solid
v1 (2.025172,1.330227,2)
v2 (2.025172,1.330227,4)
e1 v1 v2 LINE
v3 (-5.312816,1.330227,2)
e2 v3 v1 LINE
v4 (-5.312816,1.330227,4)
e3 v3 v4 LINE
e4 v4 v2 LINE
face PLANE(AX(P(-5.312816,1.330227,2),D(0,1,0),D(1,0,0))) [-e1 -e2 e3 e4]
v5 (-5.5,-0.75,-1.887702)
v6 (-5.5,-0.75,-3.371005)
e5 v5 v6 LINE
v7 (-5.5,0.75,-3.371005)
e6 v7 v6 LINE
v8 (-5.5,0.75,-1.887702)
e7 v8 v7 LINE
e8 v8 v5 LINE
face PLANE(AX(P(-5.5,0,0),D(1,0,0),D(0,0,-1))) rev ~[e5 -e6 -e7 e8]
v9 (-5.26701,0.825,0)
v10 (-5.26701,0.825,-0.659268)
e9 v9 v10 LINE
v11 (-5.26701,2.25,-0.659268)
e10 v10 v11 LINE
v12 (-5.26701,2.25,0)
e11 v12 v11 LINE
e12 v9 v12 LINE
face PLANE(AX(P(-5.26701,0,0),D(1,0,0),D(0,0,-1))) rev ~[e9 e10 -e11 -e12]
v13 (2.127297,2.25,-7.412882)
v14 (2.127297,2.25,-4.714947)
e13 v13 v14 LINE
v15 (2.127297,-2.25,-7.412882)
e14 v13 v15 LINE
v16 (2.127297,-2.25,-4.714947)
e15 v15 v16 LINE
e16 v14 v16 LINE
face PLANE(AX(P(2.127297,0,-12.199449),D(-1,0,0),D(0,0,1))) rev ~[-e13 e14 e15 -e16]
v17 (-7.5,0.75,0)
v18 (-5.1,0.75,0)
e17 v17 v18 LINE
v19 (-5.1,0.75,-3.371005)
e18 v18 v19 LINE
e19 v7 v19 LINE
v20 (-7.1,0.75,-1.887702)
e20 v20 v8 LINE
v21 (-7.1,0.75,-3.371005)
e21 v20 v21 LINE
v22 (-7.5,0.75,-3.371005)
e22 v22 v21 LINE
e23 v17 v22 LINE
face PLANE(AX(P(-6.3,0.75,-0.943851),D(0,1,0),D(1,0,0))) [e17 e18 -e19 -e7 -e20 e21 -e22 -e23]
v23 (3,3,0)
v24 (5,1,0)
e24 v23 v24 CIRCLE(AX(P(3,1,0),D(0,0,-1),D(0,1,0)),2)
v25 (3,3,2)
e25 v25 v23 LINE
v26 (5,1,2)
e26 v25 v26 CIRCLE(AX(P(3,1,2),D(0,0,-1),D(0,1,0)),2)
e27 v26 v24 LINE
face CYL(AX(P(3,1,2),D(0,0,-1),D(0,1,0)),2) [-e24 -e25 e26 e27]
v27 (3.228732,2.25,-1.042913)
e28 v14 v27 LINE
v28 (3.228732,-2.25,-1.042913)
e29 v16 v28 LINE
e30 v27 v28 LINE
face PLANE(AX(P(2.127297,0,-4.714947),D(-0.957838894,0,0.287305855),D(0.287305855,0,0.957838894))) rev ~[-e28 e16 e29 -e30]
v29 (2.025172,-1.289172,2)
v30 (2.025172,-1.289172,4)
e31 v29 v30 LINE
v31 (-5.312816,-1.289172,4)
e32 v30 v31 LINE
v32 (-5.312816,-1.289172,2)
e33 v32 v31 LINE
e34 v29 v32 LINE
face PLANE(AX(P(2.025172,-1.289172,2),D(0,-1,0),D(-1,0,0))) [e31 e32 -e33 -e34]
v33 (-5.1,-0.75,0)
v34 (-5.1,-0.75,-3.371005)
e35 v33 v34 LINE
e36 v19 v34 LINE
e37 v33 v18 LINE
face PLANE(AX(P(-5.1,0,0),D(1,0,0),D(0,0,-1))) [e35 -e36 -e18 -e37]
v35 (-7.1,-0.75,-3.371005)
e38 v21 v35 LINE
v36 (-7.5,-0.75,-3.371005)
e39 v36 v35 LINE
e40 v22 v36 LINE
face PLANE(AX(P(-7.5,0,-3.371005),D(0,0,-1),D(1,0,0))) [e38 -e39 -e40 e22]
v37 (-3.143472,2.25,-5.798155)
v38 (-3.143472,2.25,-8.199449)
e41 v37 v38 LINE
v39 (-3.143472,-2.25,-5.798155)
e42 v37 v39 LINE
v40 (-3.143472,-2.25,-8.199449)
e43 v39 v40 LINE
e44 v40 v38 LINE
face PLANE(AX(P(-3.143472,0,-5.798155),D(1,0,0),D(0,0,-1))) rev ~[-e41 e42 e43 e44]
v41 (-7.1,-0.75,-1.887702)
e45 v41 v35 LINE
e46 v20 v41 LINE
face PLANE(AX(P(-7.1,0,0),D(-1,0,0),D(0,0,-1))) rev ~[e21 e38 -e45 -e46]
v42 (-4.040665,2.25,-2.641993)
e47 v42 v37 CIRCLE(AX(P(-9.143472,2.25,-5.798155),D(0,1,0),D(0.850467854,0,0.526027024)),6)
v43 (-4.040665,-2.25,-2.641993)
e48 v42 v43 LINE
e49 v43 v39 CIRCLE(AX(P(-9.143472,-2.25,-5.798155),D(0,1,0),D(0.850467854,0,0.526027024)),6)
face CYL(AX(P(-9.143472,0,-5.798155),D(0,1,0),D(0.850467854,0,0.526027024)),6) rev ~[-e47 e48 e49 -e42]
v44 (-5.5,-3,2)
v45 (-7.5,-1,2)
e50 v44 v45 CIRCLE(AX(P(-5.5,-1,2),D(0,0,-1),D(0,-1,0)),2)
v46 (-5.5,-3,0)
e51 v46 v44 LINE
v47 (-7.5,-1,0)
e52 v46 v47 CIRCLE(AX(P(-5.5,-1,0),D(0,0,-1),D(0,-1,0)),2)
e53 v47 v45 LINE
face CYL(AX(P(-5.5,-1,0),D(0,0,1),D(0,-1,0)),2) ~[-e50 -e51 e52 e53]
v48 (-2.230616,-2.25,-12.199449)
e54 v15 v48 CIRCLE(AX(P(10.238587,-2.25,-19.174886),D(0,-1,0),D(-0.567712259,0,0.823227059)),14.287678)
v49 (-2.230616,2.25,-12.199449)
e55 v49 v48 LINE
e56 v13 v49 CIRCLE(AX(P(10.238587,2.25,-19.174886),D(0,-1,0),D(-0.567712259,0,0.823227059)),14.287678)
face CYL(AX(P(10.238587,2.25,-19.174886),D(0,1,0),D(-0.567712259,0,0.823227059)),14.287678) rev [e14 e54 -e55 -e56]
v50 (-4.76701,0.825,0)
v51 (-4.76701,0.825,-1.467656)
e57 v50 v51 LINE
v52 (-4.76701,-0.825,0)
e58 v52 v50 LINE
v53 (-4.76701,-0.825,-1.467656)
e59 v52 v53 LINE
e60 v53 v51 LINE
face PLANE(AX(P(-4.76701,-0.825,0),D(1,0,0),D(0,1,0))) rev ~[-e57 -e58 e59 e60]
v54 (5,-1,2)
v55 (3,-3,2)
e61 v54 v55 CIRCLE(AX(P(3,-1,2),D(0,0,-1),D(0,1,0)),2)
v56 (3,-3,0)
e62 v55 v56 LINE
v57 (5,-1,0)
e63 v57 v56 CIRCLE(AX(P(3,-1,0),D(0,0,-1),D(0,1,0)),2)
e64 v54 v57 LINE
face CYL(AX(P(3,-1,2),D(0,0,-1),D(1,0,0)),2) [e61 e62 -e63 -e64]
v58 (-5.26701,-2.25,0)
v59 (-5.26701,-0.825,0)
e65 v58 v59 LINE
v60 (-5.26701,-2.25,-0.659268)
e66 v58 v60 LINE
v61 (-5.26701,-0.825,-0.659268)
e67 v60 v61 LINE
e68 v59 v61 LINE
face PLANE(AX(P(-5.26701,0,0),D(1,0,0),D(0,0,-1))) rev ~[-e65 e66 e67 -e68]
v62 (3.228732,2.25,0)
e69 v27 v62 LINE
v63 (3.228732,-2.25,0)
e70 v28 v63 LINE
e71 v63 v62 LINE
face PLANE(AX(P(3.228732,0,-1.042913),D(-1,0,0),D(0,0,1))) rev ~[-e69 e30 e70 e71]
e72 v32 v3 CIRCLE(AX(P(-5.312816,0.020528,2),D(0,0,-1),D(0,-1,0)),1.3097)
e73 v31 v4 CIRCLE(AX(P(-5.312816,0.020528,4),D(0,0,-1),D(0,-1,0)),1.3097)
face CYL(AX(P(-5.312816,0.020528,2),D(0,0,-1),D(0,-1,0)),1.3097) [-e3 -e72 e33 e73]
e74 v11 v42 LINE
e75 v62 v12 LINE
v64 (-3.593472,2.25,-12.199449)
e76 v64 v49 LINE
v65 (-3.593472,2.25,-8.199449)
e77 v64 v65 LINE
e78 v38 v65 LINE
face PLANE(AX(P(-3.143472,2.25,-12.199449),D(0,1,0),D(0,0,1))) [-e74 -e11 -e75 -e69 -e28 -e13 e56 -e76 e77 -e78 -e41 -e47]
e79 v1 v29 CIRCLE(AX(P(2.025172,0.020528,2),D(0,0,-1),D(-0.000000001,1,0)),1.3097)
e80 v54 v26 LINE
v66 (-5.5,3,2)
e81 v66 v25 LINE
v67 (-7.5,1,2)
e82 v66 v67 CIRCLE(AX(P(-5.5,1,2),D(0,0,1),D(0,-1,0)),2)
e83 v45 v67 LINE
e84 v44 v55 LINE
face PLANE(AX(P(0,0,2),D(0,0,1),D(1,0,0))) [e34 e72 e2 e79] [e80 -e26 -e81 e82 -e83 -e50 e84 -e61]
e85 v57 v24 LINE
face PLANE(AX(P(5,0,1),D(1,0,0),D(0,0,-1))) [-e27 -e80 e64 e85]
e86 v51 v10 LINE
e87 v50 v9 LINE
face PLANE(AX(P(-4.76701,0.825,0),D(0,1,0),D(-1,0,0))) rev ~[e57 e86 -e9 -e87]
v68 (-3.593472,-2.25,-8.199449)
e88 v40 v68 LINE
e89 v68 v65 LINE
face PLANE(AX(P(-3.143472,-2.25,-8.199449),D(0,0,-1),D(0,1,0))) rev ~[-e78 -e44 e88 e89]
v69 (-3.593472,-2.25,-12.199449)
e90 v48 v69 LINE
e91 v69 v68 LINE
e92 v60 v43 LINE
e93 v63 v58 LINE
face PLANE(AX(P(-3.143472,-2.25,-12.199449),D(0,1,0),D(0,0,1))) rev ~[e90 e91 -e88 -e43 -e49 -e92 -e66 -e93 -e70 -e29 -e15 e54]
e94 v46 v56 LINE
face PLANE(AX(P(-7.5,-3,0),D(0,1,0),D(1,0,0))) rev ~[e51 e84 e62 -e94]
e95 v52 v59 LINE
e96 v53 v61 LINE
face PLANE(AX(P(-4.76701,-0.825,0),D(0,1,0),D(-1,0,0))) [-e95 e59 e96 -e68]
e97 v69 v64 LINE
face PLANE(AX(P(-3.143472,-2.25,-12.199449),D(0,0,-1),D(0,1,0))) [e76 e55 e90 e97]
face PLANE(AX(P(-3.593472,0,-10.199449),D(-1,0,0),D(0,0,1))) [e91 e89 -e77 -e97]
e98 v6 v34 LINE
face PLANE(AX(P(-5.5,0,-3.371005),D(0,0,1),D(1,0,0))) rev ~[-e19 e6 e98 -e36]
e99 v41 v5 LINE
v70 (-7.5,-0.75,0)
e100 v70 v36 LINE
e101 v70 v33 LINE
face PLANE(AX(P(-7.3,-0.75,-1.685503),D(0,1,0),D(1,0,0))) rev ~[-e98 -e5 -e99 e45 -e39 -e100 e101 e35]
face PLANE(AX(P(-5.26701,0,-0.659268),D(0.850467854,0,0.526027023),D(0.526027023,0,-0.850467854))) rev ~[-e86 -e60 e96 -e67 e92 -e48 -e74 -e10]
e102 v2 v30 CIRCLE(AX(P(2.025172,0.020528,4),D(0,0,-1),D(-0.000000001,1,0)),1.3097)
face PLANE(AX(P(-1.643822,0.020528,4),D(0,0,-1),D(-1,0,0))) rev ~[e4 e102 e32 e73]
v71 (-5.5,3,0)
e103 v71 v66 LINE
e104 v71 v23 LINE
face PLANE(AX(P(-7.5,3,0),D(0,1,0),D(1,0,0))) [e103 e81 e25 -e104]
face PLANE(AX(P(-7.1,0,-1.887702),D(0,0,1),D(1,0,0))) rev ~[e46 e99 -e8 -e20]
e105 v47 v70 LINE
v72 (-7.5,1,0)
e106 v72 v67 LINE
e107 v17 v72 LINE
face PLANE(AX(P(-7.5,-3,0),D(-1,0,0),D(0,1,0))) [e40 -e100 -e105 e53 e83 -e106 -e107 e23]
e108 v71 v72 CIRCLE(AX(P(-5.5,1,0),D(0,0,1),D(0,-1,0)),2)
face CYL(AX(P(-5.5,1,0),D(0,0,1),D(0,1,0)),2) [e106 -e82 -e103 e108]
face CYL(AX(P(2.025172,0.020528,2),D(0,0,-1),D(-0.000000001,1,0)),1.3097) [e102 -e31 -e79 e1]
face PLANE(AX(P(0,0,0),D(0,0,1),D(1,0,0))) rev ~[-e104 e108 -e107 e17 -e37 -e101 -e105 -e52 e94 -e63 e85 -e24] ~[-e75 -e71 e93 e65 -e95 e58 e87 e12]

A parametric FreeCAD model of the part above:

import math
import FreeCAD as App
import Part
import Sketcher

V = App.Vector


def edges_at(feature, points):
    """Names of the edges that pass closest to the given points."""
    edges = feature.Shape.Edges
    near = lambda p: min(range(len(edges)), key=lambda i: edges[i].distToShape(Part.Vertex(*p))[0])
    return sorted({f"Edge{near(p) + 1}" for p in points})

doc = App.newDocument("Part")
body = doc.addObject("PartDesign::Body", "Body")

# Sketch on XY plane
sketch1 = doc.addObject("Sketcher::SketchObject", "Sketch")
body.addObject(sketch1)
sketch1.AttachmentSupport = (doc.XY_Plane, [""])
sketch1.MapMode = "FlatFace"
sketch1.addGeometry([
    Part.LineSegment(V(-8, 3, 0), V(-8, -3, 0)),
    Part.LineSegment(V(-8, -3, 0), V(8, -3, 0)),
    Part.LineSegment(V(8, -3, 0), V(8, 3, 0)),
    Part.LineSegment(V(8, 3, 0), V(-8, 3, 0)),
], False)
sketch1.addConstraint([
    Sketcher.Constraint("Coincident", 0, 2, 1, 1),
    Sketcher.Constraint("Coincident", 1, 2, 2, 1),
    Sketcher.Constraint("Coincident", 2, 2, 3, 1),
    Sketcher.Constraint("Coincident", 3, 2, 0, 1),
    Sketcher.Constraint("Vertical", 0),
    Sketcher.Constraint("Horizontal", 1),
    Sketcher.Constraint("Vertical", 2),
    Sketcher.Constraint("Horizontal", 3),
    Sketcher.Constraint("Symmetric", 0, 2, 2, 2, -1, 1),
    Sketcher.Constraint("DistanceX", 1, 1, 1, 2, 15.0),
    Sketcher.Constraint("DistanceY", 0, 2, 0, 1, 6.0),
])
pad1 = doc.addObject("PartDesign::Pad", "Pad")
body.addObject(pad1)
pad1.Profile = sketch1
pad1.Length = 2

# Sketch on XY plane
sketch2 = doc.addObject("Sketcher::SketchObject", "Sketch001")
body.addObject(sketch2)
sketch2.AttachmentSupport = (doc.XY_Plane, [""])
sketch2.MapMode = "FlatFace"
sketch2.AttachmentOffset = App.Placement(V(0, 0, 2), App.Rotation())
sketch2.addGeometry([
    Part.LineSegment(V(2, 1.3, 0), V(-5.3, 1.3, 0)),
    Part.ArcOfCircle(Part.Circle(V(-5.3, 0, 0), V(0, 0, 1), 1.3), math.radians(90), math.radians(270)),
    Part.LineSegment(V(-5.3, -1.3, 0), V(2, -1.3, 0)),
    Part.ArcOfCircle(Part.Circle(V(2, 0, 0), V(0, 0, 1), 1.3), math.radians(-90), math.radians(90)),
], False)
sketch2.addConstraint([
    Sketcher.Constraint("Tangent", 0, 2, 1, 1),
    Sketcher.Constraint("Tangent", 1, 2, 2, 1),
    Sketcher.Constraint("Tangent", 2, 2, 3, 1),
    Sketcher.Constraint("Tangent", 3, 2, 0, 1),
    Sketcher.Constraint("Horizontal", 0),
    Sketcher.Constraint("Horizontal", 2),
    Sketcher.Constraint("Radius", 1, 1.3097),
    Sketcher.Constraint("DistanceX", 0, 2, 0, 1, 7.337988),
    Sketcher.Constraint("DistanceX", 1, 3, -1, 1, 5.312816),
    Sketcher.Constraint("DistanceY", -1, 1, 1, 3, 0.020528),
])
pad2 = doc.addObject("PartDesign::Pad", "Pad001")
body.addObject(pad2)
pad2.Profile = sketch2
pad2.Length = 2

# Sketch on XZ plane
sketch3 = doc.addObject("Sketcher::SketchObject", "Sketch002")
body.addObject(sketch3)
sketch3.AttachmentSupport = (doc.XZ_Plane, [""])
sketch3.MapMode = "FlatFace"
sketch3.addGeometry([
    Part.LineSegment(V(-4, -2.6, 0), V(-5.3, -0.7, 0)),  # 0
    Part.LineSegment(V(-5.3, -0.7, 0), V(-5.3, 0, 0)),  # 1
    Part.LineSegment(V(-5.3, 0, 0), V(3.2, 0, 0)),  # 2
    Part.LineSegment(V(3.2, 0, 0), V(3.2, -1, 0)),  # 3
    Part.LineSegment(V(3.2, -1, 0), V(2.1, -4.7, 0)),  # 4
    Part.LineSegment(V(2.1, -4.7, 0), V(2.1, -12.2, 0)),  # 5
    Part.LineSegment(V(2.1, -12.2, 0), V(-3.1, -12.2, 0)),  # 6
    Part.LineSegment(V(-3.1, -12.2, 0), V(-3.1, -5.8, 0)),  # 7
    Part.ArcOfCircle(Part.Circle(V(-9.1, -5.8, 0), V(0, 0, 1), 6), math.radians(0), math.radians(32)),  # 8
], False)
sketch3.addConstraint([
    Sketcher.Constraint("Coincident", 0, 2, 1, 1),
    Sketcher.Constraint("Coincident", 1, 2, 2, 1),
    Sketcher.Constraint("Coincident", 2, 2, 3, 1),
    Sketcher.Constraint("Coincident", 3, 2, 4, 1),
    Sketcher.Constraint("Coincident", 4, 2, 5, 1),
    Sketcher.Constraint("Coincident", 5, 2, 6, 1),
    Sketcher.Constraint("Coincident", 6, 2, 7, 1),
    Sketcher.Constraint("Tangent", 7, 2, 8, 1),
    Sketcher.Constraint("Tangent", 8, 2, 0, 1),
    Sketcher.Constraint("Vertical", 1),
    Sketcher.Constraint("Horizontal", 2),
    Sketcher.Constraint("Vertical", 3),
    Sketcher.Constraint("Vertical", 5),
    Sketcher.Constraint("Horizontal", 6),
    Sketcher.Constraint("Vertical", 7),
    Sketcher.Constraint("PointOnObject", 1, 2, -1),
    Sketcher.Constraint("Radius", 8, 6.0),
    Sketcher.Constraint("DistanceX", 2, 1, 2, 2, 8.495742),
    Sketcher.Constraint("DistanceX", 6, 2, 6, 1, 5.270769),
    Sketcher.Constraint("DistanceY", 1, 1, 1, 2, 0.659268),
    Sketcher.Constraint("DistanceY", 3, 2, 3, 1, 1.042913),
    Sketcher.Constraint("DistanceY", 5, 2, 5, 1, 7.484502),
    Sketcher.Constraint("DistanceY", 7, 1, 7, 2, 6.401294),
    Sketcher.Constraint("DistanceX", 8, 3, -1, 1, 9.143472),
    Sketcher.Constraint("DistanceX", 0, 2, -1, 1, 5.26701),
    Sketcher.Constraint("DistanceY", 5, 2, -1, 1, 12.199449),
])
pad3 = doc.addObject("PartDesign::Pad", "Pad002")
body.addObject(pad3)
pad3.Profile = sketch3
pad3.Length = 4.5
pad3.Midplane = True

# Sketch on YZ plane
sketch4 = doc.addObject("Sketcher::SketchObject", "Sketch003")
body.addObject(sketch4)
sketch4.AttachmentSupport = (doc.YZ_Plane, [""])
sketch4.MapMode = "FlatFace"
sketch4.AttachmentOffset = App.Placement(V(0, 0, 7.5), App.Rotation())
sketch4.addGeometry([
    Part.LineSegment(V(3, 2, 0), V(-3, 2, 0)),
    Part.LineSegment(V(-3, 2, 0), V(-3, 0, 0)),
    Part.LineSegment(V(-3, 0, 0), V(3, 0, 0)),
    Part.LineSegment(V(3, 0, 0), V(3, 2, 0)),
], False)
sketch4.addConstraint([
    Sketcher.Constraint("Coincident", 0, 2, 1, 1),
    Sketcher.Constraint("Coincident", 1, 2, 2, 1),
    Sketcher.Constraint("Coincident", 2, 2, 3, 1),
    Sketcher.Constraint("Coincident", 3, 2, 0, 1),
    Sketcher.Constraint("Horizontal", 0),
    Sketcher.Constraint("Vertical", 1),
    Sketcher.Constraint("Horizontal", 2),
    Sketcher.Constraint("Vertical", 3),
    Sketcher.Constraint("Symmetric", 1, 2, 2, 2, -1, 1),
    Sketcher.Constraint("DistanceX", 0, 2, 0, 1, 6.0),
    Sketcher.Constraint("DistanceY", 1, 2, 1, 1, 2.0),
])
pocket1 = doc.addObject("PartDesign::Pocket", "Pocket")
body.addObject(pocket1)
pocket1.Profile = sketch4
pocket1.Length = 2.5

# Sketch on YZ plane
sketch5 = doc.addObject("Sketcher::SketchObject", "Sketch004")
body.addObject(sketch5)
sketch5.AttachmentSupport = (doc.YZ_Plane, [""])
sketch5.MapMode = "FlatFace"
sketch5.AttachmentOffset = App.Placement(V(0, 0, -3.143472), App.Rotation())
sketch5.addGeometry([
    Part.LineSegment(V(2.2, -12.2, 0), V(-2.2, -12.2, 0)),
    Part.LineSegment(V(-2.2, -12.2, 0), V(-2.2, -8.2, 0)),
    Part.LineSegment(V(-2.2, -8.2, 0), V(2.2, -8.2, 0)),
    Part.LineSegment(V(2.2, -8.2, 0), V(2.2, -12.2, 0)),
], False)
sketch5.addConstraint([
    Sketcher.Constraint("Coincident", 0, 2, 1, 1),
    Sketcher.Constraint("Coincident", 1, 2, 2, 1),
    Sketcher.Constraint("Coincident", 2, 2, 3, 1),
    Sketcher.Constraint("Coincident", 3, 2, 0, 1),
    Sketcher.Constraint("Horizontal", 0),
    Sketcher.Constraint("Vertical", 1),
    Sketcher.Constraint("Horizontal", 2),
    Sketcher.Constraint("Vertical", 3),
    Sketcher.Constraint("DistanceY", 1, 1, 1, 2, 4.0),
    Sketcher.Constraint("DistanceX", 0, 2, 0, 1, 4.5),
    Sketcher.Constraint("DistanceX", 0, 2, -1, 1, 2.25),
    Sketcher.Constraint("DistanceY", 0, 2, -1, 1, 12.199449),
])
pad4 = doc.addObject("PartDesign::Pad", "Pad003")
body.addObject(pad4)
pad4.Profile = sketch5
pad4.Length = 0.45
pad4.Reversed = True

# Sketch on XY plane
sketch6 = doc.addObject("Sketcher::SketchObject", "Sketch005")
body.addObject(sketch6)
sketch6.AttachmentSupport = (doc.XY_Plane, [""])
sketch6.MapMode = "FlatFace"
sketch6.addGeometry([
    Part.LineSegment(V(-4.8, 0.8, 0), V(-4.8, -0.8, 0)),
    Part.LineSegment(V(-4.8, -0.8, 0), V(-5.3, -0.8, 0)),
    Part.LineSegment(V(-5.3, -0.8, 0), V(-5.3, 0.8, 0)),
    Part.LineSegment(V(-5.3, 0.8, 0), V(-4.8, 0.8, 0)),
], False)
sketch6.addConstraint([
    Sketcher.Constraint("Coincident", 0, 2, 1, 1),
    Sketcher.Constraint("Coincident", 1, 2, 2, 1),
    Sketcher.Constraint("Coincident", 2, 2, 3, 1),
    Sketcher.Constraint("Coincident", 3, 2, 0, 1),
    Sketcher.Constraint("Vertical", 0),
    Sketcher.Constraint("Horizontal", 1),
    Sketcher.Constraint("Vertical", 2),
    Sketcher.Constraint("Horizontal", 3),
    Sketcher.Constraint("DistanceX", 1, 2, 1, 1, 0.5),
    Sketcher.Constraint("DistanceY", 0, 2, 0, 1, 1.65),
    Sketcher.Constraint("DistanceY", 0, 2, -1, 1, 0.825),
    Sketcher.Constraint("DistanceX", 0, 2, -1, 1, 4.76701),
])
pocket2 = doc.addObject("PartDesign::Pocket", "Pocket001")
body.addObject(pocket2)
pocket2.Profile = sketch6
pocket2.Length = 2

# Sketch on XZ plane
sketch7 = doc.addObject("Sketcher::SketchObject", "Sketch006")
body.addObject(sketch7)
sketch7.AttachmentSupport = (doc.XZ_Plane, [""])
sketch7.MapMode = "FlatFace"
sketch7.addGeometry([
    Part.LineSegment(V(-7.5, -3.37, 0), V(-7.5, 0, 0)),  # 0
    Part.LineSegment(V(-7.5, 0, 0), V(-7.1, 0, 0)),  # 1
    Part.LineSegment(V(-7.1, 0, 0), V(-7.1, -3.37, 0)),  # 2
    Part.LineSegment(V(-7.1, -3.37, 0), V(-7.5, -3.37, 0)),  # 3
    Part.LineSegment(V(-5.5, -3.37, 0), V(-5.5, 0, 0)),  # 4
    Part.LineSegment(V(-5.5, 0, 0), V(-5.1, 0, 0)),  # 5
    Part.LineSegment(V(-5.1, 0, 0), V(-5.1, -3.37, 0)),  # 6
    Part.LineSegment(V(-5.1, -3.37, 0), V(-5.5, -3.37, 0)),  # 7
], False)
sketch7.addConstraint([
    Sketcher.Constraint("Coincident", 0, 2, 1, 1),
    Sketcher.Constraint("Coincident", 1, 2, 2, 1),
    Sketcher.Constraint("Coincident", 2, 2, 3, 1),
    Sketcher.Constraint("Coincident", 3, 2, 0, 1),
    Sketcher.Constraint("Coincident", 4, 2, 5, 1),
    Sketcher.Constraint("Coincident", 5, 2, 6, 1),
    Sketcher.Constraint("Coincident", 6, 2, 7, 1),
    Sketcher.Constraint("Coincident", 7, 2, 4, 1),
    Sketcher.Constraint("Vertical", 0),
    Sketcher.Constraint("Horizontal", 1),
    Sketcher.Constraint("Vertical", 2),
    Sketcher.Constraint("Horizontal", 3),
    Sketcher.Constraint("Vertical", 4),
    Sketcher.Constraint("Horizontal", 5),
    Sketcher.Constraint("Vertical", 6),
    Sketcher.Constraint("Horizontal", 7),
    Sketcher.Constraint("PointOnObject", 0, 2, -1),
    Sketcher.Constraint("PointOnObject", 4, 2, -1),
    Sketcher.Constraint("Horizontal", 3, 2, 6, 2),
    Sketcher.Constraint("Equal", 3, 5),
    Sketcher.Constraint("DistanceX", 1, 1, 1, 2, 0.4),
    Sketcher.Constraint("DistanceX", 0, 2, 4, 2, 2.0),
    Sketcher.Constraint("DistanceX", 0, 2, -1, 1, 7.5),
    Sketcher.Constraint("DistanceY", 0, 1, 0, 2, 3.371005),
])
pad5 = doc.addObject("PartDesign::Pad", "Pad004")
body.addObject(pad5)
pad5.Profile = sketch7
pad5.Length = 1.5
pad5.Midplane = True

# Sketch on XZ plane
sketch8 = doc.addObject("Sketcher::SketchObject", "Sketch007")
body.addObject(sketch8)
sketch8.AttachmentSupport = (doc.XZ_Plane, [""])
sketch8.MapMode = "FlatFace"
sketch8.AttachmentOffset = App.Placement(V(0, 0, -2.25), App.Rotation())
sketch8.addGeometry([
    Part.LineSegment(V(2.1, -12.2, 0), V(-2.2, -12.2, 0)),
    Part.ArcOfCircle(Part.Circle(V(10.2, -19.2, 0), V(0, 0, 1), 14.3), math.radians(125), math.radians(151)),
    Part.LineSegment(V(2.1, -7.4, 0), V(2.1, -12.2, 0)),
], False)
sketch8.addConstraint([
    Sketcher.Constraint("Coincident", 0, 2, 1, 2),
    Sketcher.Constraint("Coincident", 1, 1, 2, 1),
    Sketcher.Constraint("Coincident", 2, 2, 0, 1),
    Sketcher.Constraint("Horizontal", 0),
    Sketcher.Constraint("Vertical", 2),
    Sketcher.Constraint("Radius", 1, 14.287678),
    Sketcher.Constraint("DistanceX", 0, 2, 0, 1, 4.357914),
    Sketcher.Constraint("DistanceY", 2, 2, 2, 1, 4.786567),
    Sketcher.Constraint("DistanceY", 0, 2, -1, 1, 12.199449),
    Sketcher.Constraint("DistanceX", -1, 1, 1, 3, 10.238587),
])
pocket3 = doc.addObject("PartDesign::Pocket", "Pocket002")
body.addObject(pocket3)
pocket3.Profile = sketch8
pocket3.Length = 4.5
pocket3.Reversed = True

# Sketch on XZ plane
sketch9 = doc.addObject("Sketcher::SketchObject", "Sketch008")
body.addObject(sketch9)
sketch9.AttachmentSupport = (doc.XZ_Plane, [""])
sketch9.MapMode = "FlatFace"
sketch9.addGeometry([
    Part.LineSegment(V(-7.1, -1.9, 0), V(-7.1, 0, 0)),
    Part.LineSegment(V(-7.1, 0, 0), V(-5.5, 0, 0)),
    Part.LineSegment(V(-5.5, 0, 0), V(-5.5, -1.9, 0)),
    Part.LineSegment(V(-5.5, -1.9, 0), V(-7.1, -1.9, 0)),
], False)
sketch9.addConstraint([
    Sketcher.Constraint("Coincident", 0, 2, 1, 1),
    Sketcher.Constraint("Coincident", 1, 2, 2, 1),
    Sketcher.Constraint("Coincident", 2, 2, 3, 1),
    Sketcher.Constraint("Coincident", 3, 2, 0, 1),
    Sketcher.Constraint("Vertical", 0),
    Sketcher.Constraint("Horizontal", 1),
    Sketcher.Constraint("Vertical", 2),
    Sketcher.Constraint("Horizontal", 3),
    Sketcher.Constraint("PointOnObject", 0, 2, -1),
    Sketcher.Constraint("DistanceX", 1, 1, 1, 2, 1.6),
    Sketcher.Constraint("DistanceX", 0, 2, -1, 1, 7.1),
    Sketcher.Constraint("DistanceY", 0, 1, 0, 2, 1.887702),
])
pad6 = doc.addObject("PartDesign::Pad", "Pad005")
body.addObject(pad6)
pad6.Profile = sketch9
pad6.Length = 1.5
pad6.Midplane = True
doc.recompute()

fillet = doc.addObject("PartDesign::Fillet", "Fillet")
body.addObject(fillet)
fillet.Base = (pad6, edges_at(pad6, [
    (5, -3, 1),
    (5, 3, 1),
    (-7.5, -3, 1),
    (-7.5, 3, 1),
]))
fillet.Radius = 2

doc.recompute()
